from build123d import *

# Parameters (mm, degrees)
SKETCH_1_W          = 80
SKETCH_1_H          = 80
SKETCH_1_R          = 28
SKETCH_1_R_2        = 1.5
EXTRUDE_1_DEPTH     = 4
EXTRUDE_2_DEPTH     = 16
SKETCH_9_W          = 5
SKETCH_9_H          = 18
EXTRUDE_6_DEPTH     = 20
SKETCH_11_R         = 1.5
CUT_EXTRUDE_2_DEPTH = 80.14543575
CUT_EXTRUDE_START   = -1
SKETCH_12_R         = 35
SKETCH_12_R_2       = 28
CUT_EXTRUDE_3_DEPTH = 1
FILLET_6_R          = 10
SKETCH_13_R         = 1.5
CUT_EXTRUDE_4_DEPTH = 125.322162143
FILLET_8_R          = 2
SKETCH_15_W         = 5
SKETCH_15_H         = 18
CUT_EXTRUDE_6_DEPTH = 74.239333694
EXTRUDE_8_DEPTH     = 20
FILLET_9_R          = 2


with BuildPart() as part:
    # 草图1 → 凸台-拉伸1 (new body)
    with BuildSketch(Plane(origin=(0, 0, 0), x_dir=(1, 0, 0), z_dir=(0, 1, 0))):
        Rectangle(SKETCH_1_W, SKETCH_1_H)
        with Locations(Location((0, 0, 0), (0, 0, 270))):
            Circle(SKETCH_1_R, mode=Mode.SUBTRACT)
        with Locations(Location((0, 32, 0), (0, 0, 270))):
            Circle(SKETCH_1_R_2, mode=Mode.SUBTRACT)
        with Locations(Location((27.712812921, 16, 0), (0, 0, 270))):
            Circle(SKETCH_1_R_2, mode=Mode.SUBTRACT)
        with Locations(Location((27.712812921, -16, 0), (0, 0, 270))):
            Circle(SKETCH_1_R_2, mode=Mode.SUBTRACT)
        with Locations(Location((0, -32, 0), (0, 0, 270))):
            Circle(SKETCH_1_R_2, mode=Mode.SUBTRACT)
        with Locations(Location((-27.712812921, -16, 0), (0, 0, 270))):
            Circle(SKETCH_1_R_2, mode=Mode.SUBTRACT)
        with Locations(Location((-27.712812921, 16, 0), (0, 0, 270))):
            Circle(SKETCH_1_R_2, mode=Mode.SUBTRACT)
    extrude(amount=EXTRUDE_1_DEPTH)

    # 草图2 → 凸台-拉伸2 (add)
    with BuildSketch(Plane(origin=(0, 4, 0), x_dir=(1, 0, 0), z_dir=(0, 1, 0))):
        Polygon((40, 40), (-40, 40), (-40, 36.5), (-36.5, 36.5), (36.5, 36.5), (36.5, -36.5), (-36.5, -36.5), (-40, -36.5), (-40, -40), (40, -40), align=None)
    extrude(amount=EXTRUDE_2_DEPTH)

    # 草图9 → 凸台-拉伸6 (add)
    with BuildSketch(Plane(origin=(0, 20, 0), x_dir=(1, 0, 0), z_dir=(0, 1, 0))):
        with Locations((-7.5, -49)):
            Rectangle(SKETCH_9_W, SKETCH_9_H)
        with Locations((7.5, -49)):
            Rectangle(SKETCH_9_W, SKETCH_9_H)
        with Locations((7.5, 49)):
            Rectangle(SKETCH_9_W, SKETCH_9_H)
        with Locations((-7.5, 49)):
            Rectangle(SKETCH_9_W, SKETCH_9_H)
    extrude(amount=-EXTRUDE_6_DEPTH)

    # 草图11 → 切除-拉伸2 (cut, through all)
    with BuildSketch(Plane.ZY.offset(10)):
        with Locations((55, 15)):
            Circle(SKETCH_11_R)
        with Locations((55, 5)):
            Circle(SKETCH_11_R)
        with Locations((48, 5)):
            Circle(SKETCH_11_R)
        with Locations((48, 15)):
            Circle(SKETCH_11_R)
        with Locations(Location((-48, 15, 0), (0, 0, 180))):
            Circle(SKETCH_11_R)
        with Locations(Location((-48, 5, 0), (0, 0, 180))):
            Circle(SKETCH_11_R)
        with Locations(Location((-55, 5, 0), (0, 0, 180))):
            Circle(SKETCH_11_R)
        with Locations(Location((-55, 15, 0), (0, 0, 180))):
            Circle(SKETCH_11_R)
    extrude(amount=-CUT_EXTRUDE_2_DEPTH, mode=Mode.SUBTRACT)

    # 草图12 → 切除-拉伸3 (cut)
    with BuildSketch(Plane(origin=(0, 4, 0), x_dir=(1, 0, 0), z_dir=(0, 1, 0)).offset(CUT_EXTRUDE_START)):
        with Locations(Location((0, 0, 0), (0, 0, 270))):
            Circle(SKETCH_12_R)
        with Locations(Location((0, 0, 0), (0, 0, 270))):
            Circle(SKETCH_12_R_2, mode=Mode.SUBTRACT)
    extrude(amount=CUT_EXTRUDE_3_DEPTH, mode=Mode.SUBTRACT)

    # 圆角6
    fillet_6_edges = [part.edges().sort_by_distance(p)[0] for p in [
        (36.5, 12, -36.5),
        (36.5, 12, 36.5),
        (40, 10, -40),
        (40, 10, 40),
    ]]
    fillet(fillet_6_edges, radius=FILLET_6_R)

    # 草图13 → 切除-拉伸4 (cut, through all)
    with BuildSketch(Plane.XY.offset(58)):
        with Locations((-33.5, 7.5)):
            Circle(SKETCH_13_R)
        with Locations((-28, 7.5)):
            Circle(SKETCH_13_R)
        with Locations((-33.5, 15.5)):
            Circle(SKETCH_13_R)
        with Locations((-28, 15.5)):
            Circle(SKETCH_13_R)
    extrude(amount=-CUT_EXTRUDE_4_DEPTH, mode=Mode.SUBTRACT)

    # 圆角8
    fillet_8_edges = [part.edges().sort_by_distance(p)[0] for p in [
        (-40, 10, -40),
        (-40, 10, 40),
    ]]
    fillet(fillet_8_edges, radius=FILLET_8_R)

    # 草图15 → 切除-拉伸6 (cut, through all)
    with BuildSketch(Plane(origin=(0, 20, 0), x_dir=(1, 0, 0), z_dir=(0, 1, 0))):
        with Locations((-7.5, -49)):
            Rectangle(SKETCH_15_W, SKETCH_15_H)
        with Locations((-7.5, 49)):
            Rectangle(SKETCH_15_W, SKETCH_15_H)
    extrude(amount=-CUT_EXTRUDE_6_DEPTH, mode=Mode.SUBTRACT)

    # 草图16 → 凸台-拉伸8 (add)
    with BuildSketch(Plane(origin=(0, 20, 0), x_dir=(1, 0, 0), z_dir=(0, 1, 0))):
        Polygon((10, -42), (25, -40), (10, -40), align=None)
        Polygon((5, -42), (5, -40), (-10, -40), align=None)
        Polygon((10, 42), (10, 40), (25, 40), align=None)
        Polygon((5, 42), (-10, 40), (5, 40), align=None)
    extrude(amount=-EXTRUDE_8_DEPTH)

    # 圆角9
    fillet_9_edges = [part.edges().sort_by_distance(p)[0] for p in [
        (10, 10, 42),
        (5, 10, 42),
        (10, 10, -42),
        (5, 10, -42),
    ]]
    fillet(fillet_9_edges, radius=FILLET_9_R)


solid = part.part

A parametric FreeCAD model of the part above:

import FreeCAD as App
import Part
import Sketcher
Q = App.Units.Quantity


def edges_at(feature, points):
    """Names of the edges that pass closest to the given points."""
    edges = feature.Shape.Edges
    near = lambda p: min(range(len(edges)), key=lambda i: edges[i].distToShape(Part.Vertex(*p))[0])
    return sorted({f"Edge{near(p) + 1}" for p in points})

doc = App.newDocument("Part")
body = doc.addObject("PartDesign::Body", "Body")

sketch1 = doc.addObject("Sketcher::SketchObject", "Sketch")
body.addObject(sketch1)
sketch1.AttachmentSupport = (doc.XZ_Plane, [""])
sketch1.MapMode = "FlatFace"
sketch1.addGeometry([
    Part.LineSegment(App.Vector(-40, -40, 0), App.Vector(-40, 40, 0)),
    Part.LineSegment(App.Vector(-40, 40, 0), App.Vector(40, 40, 0)),
    Part.LineSegment(App.Vector(40, 40, 0), App.Vector(40, -40, 0)),
    Part.LineSegment(App.Vector(40, -40, 0), App.Vector(-40, -40, 0)),
    Part.Circle(App.Vector(-27.7, 16, 0), App.Vector(0, 0, 1), 1.5),
    Part.Circle(App.Vector(0, 32, 0), App.Vector(0, 0, 1), 1.5),
    Part.Circle(App.Vector(27.7, 16, 0), App.Vector(0, 0, 1), 1.5),
    Part.Circle(App.Vector(-27.7, -16, 0), App.Vector(0, 0, 1), 1.5),
    Part.Circle(App.Vector(0, 0, 0), App.Vector(0, 0, 1), 28),
    Part.Circle(App.Vector(27.7, -16, 0), App.Vector(0, 0, 1), 1.5),
    Part.Circle(App.Vector(0, -32, 0), App.Vector(0, 0, 1), 1.5),
], False)
sketch1.addConstraint([
    Sketcher.Constraint("Coincident", 0, 2, 1, 1),
    Sketcher.Constraint("Coincident", 1, 2, 2, 1),
    Sketcher.Constraint("Coincident", 2, 2, 3, 1),
    Sketcher.Constraint("Coincident", 3, 2, 0, 1),
    Sketcher.Constraint("Vertical", 0),
    Sketcher.Constraint("Horizontal", 1),
    Sketcher.Constraint("Vertical", 2),
    Sketcher.Constraint("Horizontal", 3),
    Sketcher.Constraint("Coincident", 8, 3, -1, 1),
    Sketcher.Constraint("Equal", 4, 5),
    Sketcher.Constraint("Equal", 5, 6),
    Sketcher.Constraint("Equal", 6, 7),
    Sketcher.Constraint("Equal", 7, 9),
    Sketcher.Constraint("Equal", 9, 10),
    Sketcher.Constraint("Symmetric", 6, 3, 7, 3, -1, 1),
    Sketcher.Constraint("Symmetric", 4, 3, 9, 3, -1, 1),
    Sketcher.Constraint("Symmetric", 5, 3, 10, 3, -1, 1),
    Sketcher.Constraint("Symmetric", 0, 2, 2, 2, -1, 1),
    Sketcher.Constraint("Symmetric", 4, 3, 6, 3, -2),
    Sketcher.Constraint("PointOnObject", 5, 3, -2),
    Sketcher.Constraint("Equal", 3, 0),
    Sketcher.Constraint("Diameter", 4, Q("3 mm")),
    Sketcher.Constraint("Diameter", 8, Q("56 mm")),
    Sketcher.Constraint("DistanceX", 1, 1, 1, 2, Q("80 mm")),
    Sketcher.Constraint("DistanceY", -1, 1, 4, 3, Q("16 mm")),
    Sketcher.Constraint("DistanceY", -1, 1, 5, 3, Q("32 mm")),
    Sketcher.Constraint("DistanceX", 4, 3, -1, 1, Q("27.712813 mm")),
])
pad1 = doc.addObject("PartDesign::Pad", "Pad")
body.addObject(pad1)
pad1.Profile = sketch1
pad1.Length = 4
pad1.Reversed = True

sketch2 = doc.addObject("Sketcher::SketchObject", "Sketch001")
body.addObject(sketch2)
sketch2.AttachmentSupport = (doc.XZ_Plane, [""])
sketch2.MapMode = "FlatFace"
sketch2.AttachmentOffset = App.Placement(App.Vector(0, 0, -4), App.Rotation())
sketch2.addGeometry([
    Part.LineSegment(App.Vector(40, -40, 0), App.Vector(-40, -40, 0)),
    Part.LineSegment(App.Vector(-40, -40, 0), App.Vector(-40, -36.5, 0)),
    Part.LineSegment(App.Vector(-40, -36.5, 0), App.Vector(36.5, -36.5, 0)),
    Part.LineSegment(App.Vector(36.5, -36.5, 0), App.Vector(36.5, 36.5, 0)),
    Part.LineSegment(App.Vector(36.5, 36.5, 0), App.Vector(-40, 36.5, 0)),
    Part.LineSegment(App.Vector(-40, 36.5, 0), App.Vector(-40, 40, 0)),
    Part.LineSegment(App.Vector(-40, 40, 0), App.Vector(40, 40, 0)),
    Part.LineSegment(App.Vector(40, 40, 0), App.Vector(40, -40, 0)),
], False)
sketch2.addConstraint([
    Sketcher.Constraint("Coincident", 0, 2, 1, 1),
    Sketcher.Constraint("Coincident", 1, 2, 2, 1),
    Sketcher.Constraint("Coincident", 2, 2, 3, 1),
    Sketcher.Constraint("Coincident", 3, 2, 4, 1),
    Sketcher.Constraint("Coincident", 4, 2, 5, 1),
    Sketcher.Constraint("Coincident", 5, 2, 6, 1),
    Sketcher.Constraint("Coincident", 6, 2, 7, 1),
    Sketcher.Constraint("Coincident", 7, 2, 0, 1),
    Sketcher.Constraint("Horizontal", 0),
    Sketcher.Constraint("Vertical", 1),
    Sketcher.Constraint("Horizontal", 2),
    Sketcher.Constraint("Vertical", 3),
    Sketcher.Constraint("Horizontal", 4),
    Sketcher.Constraint("Vertical", 5),
    Sketcher.Constraint("Horizontal", 6),
    Sketcher.Constraint("Vertical", 7),
    Sketcher.Constraint("Symmetric", 0, 2, 6, 2, -1, 1),
    Sketcher.Constraint("Symmetric", 1, 2, 4, 2, -1),
    Sketcher.Constraint("Equal", 6, 7),
    Sketcher.Constraint("DistanceX", 0, 2, 0, 1, Q("80 mm")),
    Sketcher.Constraint("DistanceY", 3, 1, 3, 2, Q("73 mm")),
    Sketcher.Constraint("DistanceX", 2, 1, 2, 2, Q("76.5 mm")),
])
pad2 = doc.addObject("PartDesign::Pad", "Pad001")
body.addObject(pad2)
pad2.Profile = sketch2
pad2.Length = 16
pad2.Reversed = True

sketch3 = doc.addObject("Sketcher::SketchObject", "Sketch002")
body.addObject(sketch3)
sketch3.AttachmentSupport = (doc.XZ_Plane, [""])
sketch3.MapMode = "FlatFace"
sketch3.AttachmentOffset = App.Placement(App.Vector(0, 0, -20), App.Rotation())
sketch3.addGeometry([
    Part.LineSegment(App.Vector(-10, 40, 0), App.Vector(-10, 58, 0)),
    Part.LineSegment(App.Vector(-10, 58, 0), App.Vector(-5, 58, 0)),
    Part.LineSegment(App.Vector(-5, 58, 0), App.Vector(-5, 40, 0)),
    Part.LineSegment(App.Vector(-5, 40, 0), App.Vector(-10, 40, 0)),
    Part.LineSegment(App.Vector(5, 40, 0), App.Vector(5, 58, 0)),
    Part.LineSegment(App.Vector(5, 58, 0), App.Vector(10, 58, 0)),
    Part.LineSegment(App.Vector(10, 58, 0), App.Vector(10, 40, 0)),
    Part.LineSegment(App.Vector(10, 40, 0), App.Vector(5, 40, 0)),
    Part.LineSegment(App.Vector(5, -58, 0), App.Vector(5, -40, 0)),
    Part.LineSegment(App.Vector(5, -40, 0), App.Vector(10, -40, 0)),
    Part.LineSegment(App.Vector(10, -40, 0), App.Vector(10, -58, 0)),
    Part.LineSegment(App.Vector(10, -58, 0), App.Vector(5, -58, 0)),
    Part.LineSegment(App.Vector(-10, -58, 0), App.Vector(-10, -40, 0)),
    Part.LineSegment(App.Vector(-10, -40, 0), App.Vector(-5, -40, 0)),
    Part.LineSegment(App.Vector(-5, -40, 0), App.Vector(-5, -58, 0)),
    Part.LineSegment(App.Vector(-5, -58, 0), App.Vector(-10, -58, 0)),
], False)
sketch3.addConstraint([
    Sketcher.Constraint("Coincident", 0, 2, 1, 1),
    Sketcher.Constraint("Coincident", 1, 2, 2, 1),
    Sketcher.Constraint("Coincident", 2, 2, 3, 1),
    Sketcher.Constraint("Coincident", 3, 2, 0, 1),
    Sketcher.Constraint("Coincident", 4, 2, 5, 1),
    Sketcher.Constraint("Coincident", 5, 2, 6, 1),
    Sketcher.Constraint("Coincident", 6, 2, 7, 1),
    Sketcher.Constraint("Coincident", 7, 2, 4, 1),
    Sketcher.Constraint("Coincident", 8, 2, 9, 1),
    Sketcher.Constraint("Coincident", 9, 2, 10, 1),
    Sketcher.Constraint("Coincident", 10, 2, 11, 1),
    Sketcher.Constraint("Coincident", 11, 2, 8, 1),
    Sketcher.Constraint("Coincident", 12, 2, 13, 1),
    Sketcher.Constraint("Coincident", 13, 2, 14, 1),
    Sketcher.Constraint("Coincident", 14, 2, 15, 1),
    Sketcher.Constraint("Coincident", 15, 2, 12, 1),
    Sketcher.Constraint("Vertical", 0),
    Sketcher.Constraint("Horizontal", 1),
    Sketcher.Constraint("Vertical", 2),
    Sketcher.Constraint("Horizontal", 3),
    Sketcher.Constraint("Vertical", 4),
    Sketcher.Constraint("Horizontal", 5),
    Sketcher.Constraint("Vertical", 6),
    Sketcher.Constraint("Horizontal", 7),
    Sketcher.Constraint("Vertical", 8),
    Sketcher.Constraint("Horizontal", 9),
    Sketcher.Constraint("Vertical", 10),
    Sketcher.Constraint("Horizontal", 11),
    Sketcher.Constraint("Vertical", 12),
    Sketcher.Constraint("Horizontal", 13),
    Sketcher.Constraint("Vertical", 14),
    Sketcher.Constraint("Horizontal", 15),
    Sketcher.Constraint("Symmetric", 2, 2, 8, 2, -1, 1),
    Sketcher.Constraint("Symmetric", 0, 2, 10, 2, -1, 1),
    Sketcher.Constraint("Symmetric", 6, 2, 12, 2, -1, 1),
    Sketcher.Constraint("Symmetric", 4, 2, 14, 2, -1, 1),
    Sketcher.Constraint("Symmetric", 1, 2, 4, 2, -2),
    Sketcher.Constraint("Symmetric", 3, 2, 6, 2, -2),
    Sketcher.Constraint("DistanceX", 1, 1, 1, 2, Q("5 mm")),
    Sketcher.Constraint("DistanceY", 0, 1, 0, 2, Q("18 mm")),
    Sketcher.Constraint("DistanceX", 0, 2, -1, 1, Q("10 mm")),
    Sketcher.Constraint("DistanceY", -1, 1, 0, 2, Q("58 mm")),
])
pad3 = doc.addObject("PartDesign::Pad", "Pad002")
body.addObject(pad3)
pad3.Profile = sketch3
pad3.Length = 20

sketch4 = doc.addObject("Sketcher::SketchObject", "Sketch003")
body.addObject(sketch4)
sketch4.AttachmentSupport = (doc.YZ_Plane, [""])
sketch4.MapMode = "FlatFace"
sketch4.AttachmentOffset = App.Placement(App.Vector(0, 0, -10), App.Rotation())
sketch4.addGeometry([
    Part.Circle(App.Vector(15, 55, 0), App.Vector(0, 0, 1), 1.5),
    Part.Circle(App.Vector(5, 55, 0), App.Vector(0, 0, 1), 1.5),
    Part.Circle(App.Vector(5, 48, 0), App.Vector(0, 0, 1), 1.5),
    Part.Circle(App.Vector(15, 48, 0), App.Vector(0, 0, 1), 1.5),
    Part.Circle(App.Vector(15, -48, 0), App.Vector(0, 0, 1), 1.5),
    Part.Circle(App.Vector(5, -48, 0), App.Vector(0, 0, 1), 1.5),
    Part.Circle(App.Vector(5, -55, 0), App.Vector(0, 0, 1), 1.5),
    Part.Circle(App.Vector(15, -55, 0), App.Vector(0, 0, 1), 1.5),
], False)
sketch4.addConstraint([
    Sketcher.Constraint("Equal", 0, 1),
    Sketcher.Constraint("Equal", 1, 2),
    Sketcher.Constraint("Equal", 2, 3),
    Sketcher.Constraint("Equal", 3, 4),
    Sketcher.Constraint("Equal", 4, 5),
    Sketcher.Constraint("Equal", 5, 6),
    Sketcher.Constraint("Equal", 6, 7),
    Sketcher.Constraint("Symmetric", 3, 3, 4, 3, -1),
    Sketcher.Constraint("Symmetric", 2, 3, 5, 3, -1),
    Sketcher.Constraint("Symmetric", 1, 3, 6, 3, -1),
    Sketcher.Constraint("Symmetric", 0, 3, 7, 3, -1),
    Sketcher.Constraint("Horizontal", 0, 3, 1, 3),
    Sketcher.Constraint("Horizontal", 2, 3, 3, 3),
    Sketcher.Constraint("Vertical", 1, 3, 2, 3),
    Sketcher.Constraint("Vertical", 0, 3, 3, 3),
    Sketcher.Constraint("Diameter", 0, Q("3 mm")),
    Sketcher.Constraint("DistanceX", -1, 1, 0, 3, Q("15 mm")),
    Sketcher.Constraint("DistanceY", -1, 1, 0, 3, Q("55 mm")),
    Sketcher.Constraint("DistanceX", -1, 1, 1, 3, Q("5 mm")),
    Sketcher.Constraint("DistanceY", -1, 1, 2, 3, Q("48 mm")),
])
pocket1 = doc.addObject("PartDesign::Pocket", "Pocket")
body.addObject(pocket1)
pocket1.Profile = sketch4
pocket1.Type = "ThroughAll"
pocket1.Reversed = True

sketch5 = doc.addObject("Sketcher::SketchObject", "Sketch004")
body.addObject(sketch5)
sketch5.AttachmentSupport = (doc.XZ_Plane, [""])
sketch5.MapMode = "FlatFace"
sketch5.AttachmentOffset = App.Placement(App.Vector(0, 0, -3), App.Rotation())
sketch5.addGeometry([
    Part.Circle(App.Vector(0, 0, 0), App.Vector(0, 0, 1), 35),
    Part.Circle(App.Vector(0, 0, 0), App.Vector(0, 0, 1), 28),
], False)
sketch5.addConstraint([
    Sketcher.Constraint("Coincident", 0, 3, -1, 1),
    Sketcher.Constraint("Coincident", 1, 3, -1, 1),
    Sketcher.Constraint("Diameter", 0, Q("70 mm")),
    Sketcher.Constraint("Diameter", 1, Q("56 mm")),
])
pocket2 = doc.addObject("PartDesign::Pocket", "Pocket001")
body.addObject(pocket2)
pocket2.Profile = sketch5
pocket2.Length = 1
doc.recompute()

fillet = doc.addObject("PartDesign::Fillet", "Fillet")
body.addObject(fillet)
fillet.Base = (pocket2, edges_at(pocket2, [
    (36.5, 12, -36.5),
    (36.5, 12, 36.5),
    (40, 10, -40),
    (40, 10, 40),
]))
fillet.Radius = 10

sketch6 = doc.addObject("Sketcher::SketchObject", "Sketch005")
body.addObject(sketch6)
sketch6.AttachmentSupport = (doc.XY_Plane, [""])
sketch6.MapMode = "FlatFace"
sketch6.AttachmentOffset = App.Placement(App.Vector(0, 0, 58), App.Rotation())
sketch6.addGeometry([
    Part.Circle(App.Vector(-33.5, 7.5, 0), App.Vector(0, 0, 1), 1.5),
    Part.Circle(App.Vector(-28, 7.5, 0), App.Vector(0, 0, 1), 1.5),
    Part.Circle(App.Vector(-33.5, 15.5, 0), App.Vector(0, 0, 1), 1.5),
    Part.Circle(App.Vector(-28, 15.5, 0), App.Vector(0, 0, 1), 1.5),
], False)
sketch6.addConstraint([
    Sketcher.Constraint("Equal", 0, 1),
    Sketcher.Constraint("Equal", 1, 2),
    Sketcher.Constraint("Equal", 2, 3),
    Sketcher.Constraint("Horizontal", 0, 3, 1, 3),
    Sketcher.Constraint("Horizontal", 2, 3, 3, 3),
    Sketcher.Constraint("Vertical", 0, 3, 2, 3),
    Sketcher.Constraint("Vertical", 1, 3, 3, 3),
    Sketcher.Constraint("Diameter", 0, Q("3 mm")),
    Sketcher.Constraint("DistanceX", 1, 3, -1, 1, Q("28 mm")),
    Sketcher.Constraint("DistanceY", 0, 3, 2, 3, Q("8 mm")),
    Sketcher.Constraint("DistanceX", 0, 3, -1, 1, Q("33.5 mm")),
    Sketcher.Constraint("DistanceY", -1, 1, 0, 3, Q("7.5 mm")),
])
pocket3 = doc.addObject("PartDesign::Pocket", "Pocket002")
body.addObject(pocket3)
pocket3.Profile = sketch6
pocket3.Type = "ThroughAll"
doc.recompute()

fillet2 = doc.addObject("PartDesign::Fillet", "Fillet001")
body.addObject(fillet2)
fillet2.Base = (pocket3, edges_at(pocket3, [(-40, 10, -40), (-40, 10, 40)]))
fillet2.Radius = 2

sketch7 = doc.addObject("Sketcher::SketchObject", "Sketch006")
body.addObject(sketch7)
sketch7.AttachmentSupport = (doc.XZ_Plane, [""])
sketch7.MapMode = "FlatFace"
sketch7.AttachmentOffset = App.Placement(App.Vector(0, 0, -20), App.Rotation())
sketch7.addGeometry([
    Part.LineSegment(App.Vector(-10, 40, 0), App.Vector(-10, 58, 0)),
    Part.LineSegment(App.Vector(-10, 58, 0), App.Vector(-5, 58, 0)),
    Part.LineSegment(App.Vector(-5, 58, 0), App.Vector(-5, 40, 0)),
    Part.LineSegment(App.Vector(-5, 40, 0), App.Vector(-10, 40, 0)),
    Part.LineSegment(App.Vector(-10, -58, 0), App.Vector(-10, -40, 0)),
    Part.LineSegment(App.Vector(-10, -40, 0), App.Vector(-5, -40, 0)),
    Part.LineSegment(App.Vector(-5, -40, 0), App.Vector(-5, -58, 0)),
    Part.LineSegment(App.Vector(-5, -58, 0), App.Vector(-10, -58, 0)),
], False)
sketch7.addConstraint([
    Sketcher.Constraint("Coincident", 0, 2, 1, 1),
    Sketcher.Constraint("Coincident", 1, 2, 2, 1),
    Sketcher.Constraint("Coincident", 2, 2, 3, 1),
    Sketcher.Constraint("Coincident", 3, 2, 0, 1),
    Sketcher.Constraint("Coincident", 4, 2, 5, 1),
    Sketcher.Constraint("Coincident", 5, 2, 6, 1),
    Sketcher.Constraint("Coincident", 6, 2, 7, 1),
    Sketcher.Constraint("Coincident", 7, 2, 4, 1),
    Sketcher.Constraint("Vertical", 0),
    Sketcher.Constraint("Horizontal", 1),
    Sketcher.Constraint("Vertical", 2),
    Sketcher.Constraint("Horizontal", 3),
    Sketcher.Constraint("Vertical", 4),
    Sketcher.Constraint("Horizontal", 5),
    Sketcher.Constraint("Vertical", 6),
    Sketcher.Constraint("Horizontal", 7),
    Sketcher.Constraint("Symmetric", 3, 2, 4, 2, -1),
    Sketcher.Constraint("Symmetric", 1, 2, 6, 2, -1),
    Sketcher.Constraint("DistanceX", 1, 1, 1, 2, Q("5 mm")),
    Sketcher.Constraint("DistanceY", 0, 1, 0, 2, Q("18 mm")),
    Sketcher.Constraint("DistanceX", 0, 2, -1, 1, Q("10 mm")),
    Sketcher.Constraint("DistanceY", -1, 1, 0, 2, Q("58 mm")),
])
pocket4 = doc.addObject("PartDesign::Pocket", "Pocket003")
body.addObject(pocket4)
pocket4.Profile = sketch7
pocket4.Type = "ThroughAll"
pocket4.Reversed = True

sketch8 = doc.addObject("Sketcher::SketchObject", "Sketch007")
body.addObject(sketch8)
sketch8.AttachmentSupport = (doc.XZ_Plane, [""])
sketch8.MapMode = "FlatFace"
sketch8.AttachmentOffset = App.Placement(App.Vector(0, 0, -20), App.Rotation())
sketch8.addGeometry([
    Part.LineSegment(App.Vector(10, 42, 0), App.Vector(25, 40, 0)),
    Part.LineSegment(App.Vector(25, 40, 0), App.Vector(10, 40, 0)),
    Part.LineSegment(App.Vector(10, 40, 0), App.Vector(10, 42, 0)),
    Part.LineSegment(App.Vector(5, 42, 0), App.Vector(5, 40, 0)),
    Part.LineSegment(App.Vector(5, 40, 0), App.Vector(-10, 40, 0)),
    Part.LineSegment(App.Vector(-10, 40, 0), App.Vector(5, 42, 0)),
    Part.LineSegment(App.Vector(10, -42, 0), App.Vector(10, -40, 0)),
    Part.LineSegment(App.Vector(10, -40, 0), App.Vector(25, -40, 0)),
    Part.LineSegment(App.Vector(25, -40, 0), App.Vector(10, -42, 0)),
    Part.LineSegment(App.Vector(5, -42, 0), App.Vector(-10, -40, 0)),
    Part.LineSegment(App.Vector(-10, -40, 0), App.Vector(5, -40, 0)),
    Part.LineSegment(App.Vector(5, -40, 0), App.Vector(5, -42, 0)),
], False)
sketch8.addConstraint([
    Sketcher.Constraint("Coincident", 0, 2, 1, 1),
    Sketcher.Constraint("Coincident", 1, 2, 2, 1),
    Sketcher.Constraint("Coincident", 2, 2, 0, 1),
    Sketcher.Constraint("Coincident", 3, 2, 4, 1),
    Sketcher.Constraint("Coincident", 4, 2, 5, 1),
    Sketcher.Constraint("Coincident", 5, 2, 3, 1),
    Sketcher.Constraint("Coincident", 6, 2, 7, 1),
    Sketcher.Constraint("Coincident", 7, 2, 8, 1),
    Sketcher.Constraint("Coincident", 8, 2, 6, 1),
    Sketcher.Constraint("Coincident", 9, 2, 10, 1),
    Sketcher.Constraint("Coincident", 10, 2, 11, 1),
    Sketcher.Constraint("Coincident", 11, 2, 9, 1),
    Sketcher.Constraint("Horizontal", 1),
    Sketcher.Constraint("Vertical", 2),
    Sketcher.Constraint("Vertical", 3),
    Sketcher.Constraint("Horizontal", 4),
    Sketcher.Constraint("Vertical", 6),
    Sketcher.Constraint("Horizontal", 7),
    Sketcher.Constraint("Horizontal", 10),
    Sketcher.Constraint("Vertical", 11),
    Sketcher.Constraint("Symmetric", 4, 2, 6, 2, -1, 1),
    Sketcher.Constraint("Symmetric", 1, 2, 9, 2, -1, 1),
    Sketcher.Constraint("Symmetric", 1, 2, 4, 2, -2),
    Sketcher.Constraint("Symmetric", 5, 2, 11, 2, -1),
    Sketcher.Constraint("Parallel", 5, 8),
    Sketcher.Constraint("Parallel", 0, 9),
    Sketcher.Constraint("Horizontal", 2, 2, 5, 2),
    Sketcher.Constraint("Horizontal", 8, 2, 11, 2),
    Sketcher.Constraint("DistanceX", 1, 2, 1, 1, Q("15 mm")),
    Sketcher.Constraint("DistanceY", 2, 1, 2, 2, Q("2 mm")),
    Sketcher.Constraint("DistanceX", -1, 1, 0, 2, Q("25 mm")),
    Sketcher.Constraint("DistanceY", -1, 1, 0, 2, Q("40 mm")),
])
pad4 = doc.addObject("PartDesign::Pad", "Pad003")
body.addObject(pad4)
pad4.Profile = sketch8
pad4.Length = 20
doc.recompute()

fillet3 = doc.addObject("PartDesign::Fillet", "Fillet002")
body.addObject(fillet3)
fillet3.Base = (pad4, edges_at(pad4, [
    (10, 10, 42),
    (5, 10, 42),
    (10, 10, -42),
    (5, 10, -42),
]))
fillet3.Radius = 2

doc.recompute()
